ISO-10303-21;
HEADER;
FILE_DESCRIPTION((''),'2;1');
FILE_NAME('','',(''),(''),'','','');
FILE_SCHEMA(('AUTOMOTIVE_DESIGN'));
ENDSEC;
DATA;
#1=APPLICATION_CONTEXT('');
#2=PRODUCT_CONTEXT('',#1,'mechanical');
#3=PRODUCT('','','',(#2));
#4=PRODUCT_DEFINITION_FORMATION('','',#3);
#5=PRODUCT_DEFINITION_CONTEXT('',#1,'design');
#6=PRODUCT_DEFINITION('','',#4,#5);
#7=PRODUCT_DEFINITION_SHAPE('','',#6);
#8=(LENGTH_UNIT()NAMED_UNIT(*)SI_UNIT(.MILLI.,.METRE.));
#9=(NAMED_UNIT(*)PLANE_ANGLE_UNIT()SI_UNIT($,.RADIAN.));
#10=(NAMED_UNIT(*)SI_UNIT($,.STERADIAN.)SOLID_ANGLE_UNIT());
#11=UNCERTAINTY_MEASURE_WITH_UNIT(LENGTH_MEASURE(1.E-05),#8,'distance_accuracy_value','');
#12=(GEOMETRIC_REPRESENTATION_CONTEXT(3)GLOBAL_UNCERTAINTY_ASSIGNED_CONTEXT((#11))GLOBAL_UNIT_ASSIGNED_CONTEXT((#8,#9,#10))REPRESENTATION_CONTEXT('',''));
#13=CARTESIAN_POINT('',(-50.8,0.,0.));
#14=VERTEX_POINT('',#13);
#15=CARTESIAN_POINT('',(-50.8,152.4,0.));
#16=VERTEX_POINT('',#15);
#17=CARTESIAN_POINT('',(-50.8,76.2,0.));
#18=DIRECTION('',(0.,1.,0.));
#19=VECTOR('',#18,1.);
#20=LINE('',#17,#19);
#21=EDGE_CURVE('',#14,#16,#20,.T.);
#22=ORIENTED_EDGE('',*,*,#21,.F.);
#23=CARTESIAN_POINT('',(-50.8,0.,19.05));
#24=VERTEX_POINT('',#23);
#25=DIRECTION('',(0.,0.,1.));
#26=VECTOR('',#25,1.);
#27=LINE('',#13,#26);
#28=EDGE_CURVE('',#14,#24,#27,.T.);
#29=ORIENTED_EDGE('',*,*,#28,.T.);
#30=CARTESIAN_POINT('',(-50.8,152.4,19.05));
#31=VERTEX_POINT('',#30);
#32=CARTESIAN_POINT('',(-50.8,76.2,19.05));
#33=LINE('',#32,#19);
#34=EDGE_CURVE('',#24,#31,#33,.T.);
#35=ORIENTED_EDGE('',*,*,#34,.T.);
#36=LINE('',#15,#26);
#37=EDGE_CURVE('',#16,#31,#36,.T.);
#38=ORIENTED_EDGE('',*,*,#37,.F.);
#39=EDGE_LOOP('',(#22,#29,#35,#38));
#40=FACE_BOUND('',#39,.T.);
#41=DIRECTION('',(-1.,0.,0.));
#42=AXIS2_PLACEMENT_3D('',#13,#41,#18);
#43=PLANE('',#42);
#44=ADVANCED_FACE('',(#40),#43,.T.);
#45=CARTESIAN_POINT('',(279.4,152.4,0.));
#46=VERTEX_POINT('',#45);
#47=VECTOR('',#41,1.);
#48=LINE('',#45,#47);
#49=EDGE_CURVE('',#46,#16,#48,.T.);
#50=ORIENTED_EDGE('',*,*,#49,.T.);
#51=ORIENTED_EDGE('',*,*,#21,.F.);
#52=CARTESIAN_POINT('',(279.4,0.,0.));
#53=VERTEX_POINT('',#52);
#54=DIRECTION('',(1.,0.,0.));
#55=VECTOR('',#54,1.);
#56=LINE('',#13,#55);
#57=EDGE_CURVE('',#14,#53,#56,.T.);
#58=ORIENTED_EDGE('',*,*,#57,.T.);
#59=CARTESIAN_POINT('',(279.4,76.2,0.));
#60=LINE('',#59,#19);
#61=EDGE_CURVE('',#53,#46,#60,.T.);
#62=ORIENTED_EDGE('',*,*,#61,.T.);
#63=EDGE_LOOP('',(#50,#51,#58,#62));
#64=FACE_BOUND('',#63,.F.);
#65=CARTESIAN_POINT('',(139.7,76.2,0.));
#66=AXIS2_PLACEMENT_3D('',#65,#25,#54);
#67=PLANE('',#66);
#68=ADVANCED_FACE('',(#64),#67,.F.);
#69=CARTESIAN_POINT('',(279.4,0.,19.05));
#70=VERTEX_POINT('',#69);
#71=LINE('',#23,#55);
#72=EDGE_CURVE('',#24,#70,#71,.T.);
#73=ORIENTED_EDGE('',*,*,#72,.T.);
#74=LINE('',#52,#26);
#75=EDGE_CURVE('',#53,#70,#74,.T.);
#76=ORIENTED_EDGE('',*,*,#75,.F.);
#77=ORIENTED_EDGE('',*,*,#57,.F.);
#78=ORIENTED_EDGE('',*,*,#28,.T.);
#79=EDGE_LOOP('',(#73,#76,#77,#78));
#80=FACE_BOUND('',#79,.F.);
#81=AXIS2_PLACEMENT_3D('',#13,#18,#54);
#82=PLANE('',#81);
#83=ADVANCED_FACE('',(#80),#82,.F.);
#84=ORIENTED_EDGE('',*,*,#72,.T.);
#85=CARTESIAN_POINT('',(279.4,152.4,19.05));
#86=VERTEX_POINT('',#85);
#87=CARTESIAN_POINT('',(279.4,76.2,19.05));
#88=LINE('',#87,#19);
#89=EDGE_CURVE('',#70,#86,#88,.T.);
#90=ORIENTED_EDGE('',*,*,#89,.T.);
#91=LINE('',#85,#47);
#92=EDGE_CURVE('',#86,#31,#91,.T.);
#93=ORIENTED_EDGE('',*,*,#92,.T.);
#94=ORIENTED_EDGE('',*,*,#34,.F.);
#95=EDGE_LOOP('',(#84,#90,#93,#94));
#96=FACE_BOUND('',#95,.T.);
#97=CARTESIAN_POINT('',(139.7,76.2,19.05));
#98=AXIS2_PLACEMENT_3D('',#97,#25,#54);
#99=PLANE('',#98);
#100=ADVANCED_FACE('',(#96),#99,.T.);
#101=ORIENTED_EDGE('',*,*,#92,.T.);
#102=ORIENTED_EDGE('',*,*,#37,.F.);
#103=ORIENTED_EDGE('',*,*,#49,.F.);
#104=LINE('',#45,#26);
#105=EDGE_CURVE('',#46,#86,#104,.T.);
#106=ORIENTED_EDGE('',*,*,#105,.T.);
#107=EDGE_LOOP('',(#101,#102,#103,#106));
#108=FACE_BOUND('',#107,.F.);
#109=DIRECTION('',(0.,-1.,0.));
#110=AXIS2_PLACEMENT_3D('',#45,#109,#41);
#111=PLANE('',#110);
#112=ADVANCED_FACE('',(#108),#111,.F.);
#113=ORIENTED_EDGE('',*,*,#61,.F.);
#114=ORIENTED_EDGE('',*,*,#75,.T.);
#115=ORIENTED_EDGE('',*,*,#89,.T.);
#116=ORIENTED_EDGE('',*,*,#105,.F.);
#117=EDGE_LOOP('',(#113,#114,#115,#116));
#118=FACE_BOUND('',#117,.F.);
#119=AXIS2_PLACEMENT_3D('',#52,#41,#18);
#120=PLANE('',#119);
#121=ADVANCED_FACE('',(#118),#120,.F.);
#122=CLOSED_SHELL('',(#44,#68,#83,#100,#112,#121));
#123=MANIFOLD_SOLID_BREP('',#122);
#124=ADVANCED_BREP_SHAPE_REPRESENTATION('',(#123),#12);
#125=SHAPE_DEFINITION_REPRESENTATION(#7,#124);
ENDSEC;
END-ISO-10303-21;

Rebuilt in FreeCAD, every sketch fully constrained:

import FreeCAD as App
import Part
import Sketcher
Q = App.Units.Quantity


def add_polygon(sketch, points):
    """Adds a closed chain of lines whose ends are joined by coincident constraints."""
    first, n = sketch.GeometryCount, len(points)
    for a, b in zip(points, points[1:] + points[:1]):
        sketch.addGeometry(Part.LineSegment(App.Vector(*a, 0), App.Vector(*b, 0)), False)
    for i in range(n):
        sketch.addConstraint(Sketcher.Constraint("Coincident", first + i, 2, first + (i + 1) % n, 1))

doc = App.newDocument("Part")
params = doc.addObject("Spreadsheet::Sheet", "Params")
for row, (alias, value) in enumerate([
    ("sketch1_width", "13 in"),
    ("sketch1_height", "6 in"),
    ("pad1_length", "0.75 in"),
], start=1):
    params.set(f"A{row}", alias)
    params.set(f"B{row}", "=" + value)
    params.setAlias(f"B{row}", alias)

body = doc.addObject("PartDesign::Body", "Body")

sketch1 = body.newObject("Sketcher::SketchObject", "Sketch")
sketch1.AttachmentSupport = (doc.getObject("XY_Plane"), [""])
sketch1.MapMode = "FlatFace"
add_polygon(sketch1, [(279, 0), (279, 152), (-51, 152), (-51, 0)])
sketch1.addConstraint([
    Sketcher.Constraint("Vertical", 0),
    Sketcher.Constraint("Horizontal", 1),
    Sketcher.Constraint("Vertical", 2),
    Sketcher.Constraint("Horizontal", 3),
    Sketcher.Constraint("PointOnObject", 2, 2, -1),
    Sketcher.Constraint("DistanceX", 1, 2, 1, 1, Q("13 in")),
    Sketcher.Constraint("DistanceY", 0, 1, 0, 2, Q("6 in")),
    Sketcher.Constraint("DistanceX", -1, 1, 0, 2, Q("11 in")),
])
sketch1.setExpression("Constraints[9]", "Params.sketch1_width")
sketch1.setExpression("Constraints[10]", "Params.sketch1_height")
pad1 = body.newObject("PartDesign::Pad", "Pad")
pad1.Profile = sketch1
pad1.setExpression("Length", "Params.pad1_length")

doc.recompute()
